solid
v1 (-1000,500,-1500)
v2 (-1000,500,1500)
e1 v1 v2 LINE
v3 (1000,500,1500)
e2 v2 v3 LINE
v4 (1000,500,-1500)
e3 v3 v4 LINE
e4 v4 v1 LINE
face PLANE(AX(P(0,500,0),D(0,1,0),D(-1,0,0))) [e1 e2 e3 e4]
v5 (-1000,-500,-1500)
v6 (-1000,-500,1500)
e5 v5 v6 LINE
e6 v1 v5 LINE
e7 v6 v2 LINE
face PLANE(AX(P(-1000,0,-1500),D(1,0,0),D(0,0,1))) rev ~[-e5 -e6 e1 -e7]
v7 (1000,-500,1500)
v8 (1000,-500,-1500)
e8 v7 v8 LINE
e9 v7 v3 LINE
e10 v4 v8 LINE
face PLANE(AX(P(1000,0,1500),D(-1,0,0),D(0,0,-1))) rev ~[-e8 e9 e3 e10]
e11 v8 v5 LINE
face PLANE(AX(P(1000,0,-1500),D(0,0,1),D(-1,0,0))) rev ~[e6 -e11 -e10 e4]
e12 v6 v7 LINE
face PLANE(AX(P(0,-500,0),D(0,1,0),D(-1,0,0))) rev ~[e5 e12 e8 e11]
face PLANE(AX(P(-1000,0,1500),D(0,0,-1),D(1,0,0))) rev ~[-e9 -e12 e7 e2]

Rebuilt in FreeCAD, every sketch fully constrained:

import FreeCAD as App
import Part
import Sketcher

doc = App.newDocument("Part")
params = doc.addObject("Spreadsheet::Sheet", "Params")
for row, (alias, value) in enumerate([
    ("sketch1_width", "2000 mm"),
    ("sketch1_height", "3000 mm"),
    ("pad1_length", "1000 mm"),
], start=1):
    params.set(f"A{row}", alias)
    params.set(f"B{row}", "=" + value)
    params.setAlias(f"B{row}", alias)

body = doc.addObject("PartDesign::Body", "Body")

# Sketch on XZ plane
sketch1 = body.newObject("Sketcher::SketchObject", "Sketch")
sketch1.AttachmentSupport = (doc.getObject("XZ_Plane"), [""])
sketch1.MapMode = "FlatFace"
sketch1.addGeometry(Part.LineSegment(App.Vector(-1000, -1500, 0), App.Vector(-1000, 1500, 0)), False)
sketch1.addGeometry(Part.LineSegment(App.Vector(-1000, 1500, 0), App.Vector(1000, 1500, 0)), False)
sketch1.addGeometry(Part.LineSegment(App.Vector(1000, 1500, 0), App.Vector(1000, -1500, 0)), False)
sketch1.addGeometry(Part.LineSegment(App.Vector(1000, -1500, 0), App.Vector(-1000, -1500, 0)), False)
sketch1.addConstraint(Sketcher.Constraint("Coincident", 0, 2, 1, 1))
sketch1.addConstraint(Sketcher.Constraint("Coincident", 1, 2, 2, 1))
sketch1.addConstraint(Sketcher.Constraint("Coincident", 2, 2, 3, 1))
sketch1.addConstraint(Sketcher.Constraint("Coincident", 3, 2, 0, 1))
sketch1.addConstraint(Sketcher.Constraint("Vertical", 0))
sketch1.addConstraint(Sketcher.Constraint("Horizontal", 1))
sketch1.addConstraint(Sketcher.Constraint("Vertical", 2))
sketch1.addConstraint(Sketcher.Constraint("Horizontal", 3))
sketch1.addConstraint(Sketcher.Constraint("Symmetric", 0, 2, 2, 2, -1, 1))
sketch1.addConstraint(Sketcher.Constraint("DistanceX", 1, 1, 1, 2, 2000.0))
sketch1.addConstraint(Sketcher.Constraint("DistanceY", 0, 1, 0, 2, 3000.0))
sketch1.setExpression("Constraints[9]", "Params.sketch1_width")
sketch1.setExpression("Constraints[10]", "Params.sketch1_height")
pad1 = body.newObject("PartDesign::Pad", "Pad")
pad1.Profile = sketch1
pad1.setExpression("Length", "Params.pad1_length")
pad1.Midplane = True

doc.recompute()
